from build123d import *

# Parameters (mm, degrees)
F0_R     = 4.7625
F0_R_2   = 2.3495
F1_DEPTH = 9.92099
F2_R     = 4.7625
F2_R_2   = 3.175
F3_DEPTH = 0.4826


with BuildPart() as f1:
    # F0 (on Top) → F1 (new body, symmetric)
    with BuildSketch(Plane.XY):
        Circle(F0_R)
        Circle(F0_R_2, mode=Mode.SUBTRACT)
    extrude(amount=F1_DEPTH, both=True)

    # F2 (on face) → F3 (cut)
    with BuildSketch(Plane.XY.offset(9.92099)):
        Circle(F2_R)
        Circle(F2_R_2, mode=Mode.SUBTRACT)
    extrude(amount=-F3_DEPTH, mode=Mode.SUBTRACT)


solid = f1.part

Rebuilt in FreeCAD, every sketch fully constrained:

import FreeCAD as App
import Part
import Sketcher
from FreeCAD import Vector
Q = App.Units.Quantity

doc = App.newDocument("Part")
params = doc.addObject("Spreadsheet::Sheet", "Params")
for row, (alias, value) in enumerate([
    ("sketch1_diameter", "0.375 in"),
    ("sketch1_diameter2", "0.185 in"),
    ("pad1_length", "19.84198 mm"),
    ("sketch2_diameter", "0.25 in"),
    ("sketch2_diameter2", "0.375 in"),
    ("pocket1_length", "0.019 in"),
], start=1):
    params.set(f"A{row}", alias)
    params.set(f"B{row}", "=" + value)
    params.setAlias(f"B{row}", alias)

body = doc.addObject("PartDesign::Body", "Body")

sketch1 = doc.addObject("Sketcher::SketchObject", "Sketch")
body.addObject(sketch1)
sketch1.AttachmentSupport = (doc.XY_Plane, [""])
sketch1.MapMode = "FlatFace"
sketch1.addGeometry(Part.Circle(Vector(0, 0, 0), Vector(0, 0, 1), 4.7625), False)
sketch1.addGeometry(Part.Circle(Vector(0, 0, 0), Vector(0, 0, 1), 2.3495), False)
sketch1.addConstraint(Sketcher.Constraint("Coincident", 0, 3, -1, 1))
sketch1.addConstraint(Sketcher.Constraint("Coincident", 1, 3, -1, 1))
sketch1.addConstraint(Sketcher.Constraint("Diameter", 0, Q("0.375 in")))
sketch1.addConstraint(Sketcher.Constraint("Diameter", 1, Q("0.185 in")))
sketch1.setExpression("Constraints[2]", "Params.sketch1_diameter")
sketch1.setExpression("Constraints[3]", "Params.sketch1_diameter2")
pad1 = doc.addObject("PartDesign::Pad", "Pad")
body.addObject(pad1)
pad1.Profile = sketch1
pad1.setExpression("Length", "Params.pad1_length")
pad1.Midplane = True

sketch2 = doc.addObject("Sketcher::SketchObject", "Sketch001")
body.addObject(sketch2)
sketch2.AttachmentSupport = (doc.XY_Plane, [""])
sketch2.MapMode = "FlatFace"
sketch2.AttachmentOffset = App.Placement(Vector(0, 0, 9.92099), App.Rotation())
sketch2.addGeometry(Part.Circle(Vector(0, 0, 0), Vector(0, 0, 1), 4.7625), False)
sketch2.addGeometry(Part.Circle(Vector(0, 0, 0), Vector(0, 0, 1), 3.175), False)
sketch2.addConstraint(Sketcher.Constraint("Coincident", 0, 3, -1, 1))
sketch2.addConstraint(Sketcher.Constraint("Coincident", 1, 3, -1, 1))
sketch2.addConstraint(Sketcher.Constraint("Diameter", 1, Q("0.25 in")))
sketch2.addConstraint(Sketcher.Constraint("Diameter", 0, Q("0.375 in")))
sketch2.setExpression("Constraints[2]", "Params.sketch2_diameter")
sketch2.setExpression("Constraints[3]", "Params.sketch2_diameter2")
pocket1 = doc.addObject("PartDesign::Pocket", "Pocket")
body.addObject(pocket1)
pocket1.Profile = sketch2
pocket1.setExpression("Length", "Params.pocket1_length")

doc.recompute()
